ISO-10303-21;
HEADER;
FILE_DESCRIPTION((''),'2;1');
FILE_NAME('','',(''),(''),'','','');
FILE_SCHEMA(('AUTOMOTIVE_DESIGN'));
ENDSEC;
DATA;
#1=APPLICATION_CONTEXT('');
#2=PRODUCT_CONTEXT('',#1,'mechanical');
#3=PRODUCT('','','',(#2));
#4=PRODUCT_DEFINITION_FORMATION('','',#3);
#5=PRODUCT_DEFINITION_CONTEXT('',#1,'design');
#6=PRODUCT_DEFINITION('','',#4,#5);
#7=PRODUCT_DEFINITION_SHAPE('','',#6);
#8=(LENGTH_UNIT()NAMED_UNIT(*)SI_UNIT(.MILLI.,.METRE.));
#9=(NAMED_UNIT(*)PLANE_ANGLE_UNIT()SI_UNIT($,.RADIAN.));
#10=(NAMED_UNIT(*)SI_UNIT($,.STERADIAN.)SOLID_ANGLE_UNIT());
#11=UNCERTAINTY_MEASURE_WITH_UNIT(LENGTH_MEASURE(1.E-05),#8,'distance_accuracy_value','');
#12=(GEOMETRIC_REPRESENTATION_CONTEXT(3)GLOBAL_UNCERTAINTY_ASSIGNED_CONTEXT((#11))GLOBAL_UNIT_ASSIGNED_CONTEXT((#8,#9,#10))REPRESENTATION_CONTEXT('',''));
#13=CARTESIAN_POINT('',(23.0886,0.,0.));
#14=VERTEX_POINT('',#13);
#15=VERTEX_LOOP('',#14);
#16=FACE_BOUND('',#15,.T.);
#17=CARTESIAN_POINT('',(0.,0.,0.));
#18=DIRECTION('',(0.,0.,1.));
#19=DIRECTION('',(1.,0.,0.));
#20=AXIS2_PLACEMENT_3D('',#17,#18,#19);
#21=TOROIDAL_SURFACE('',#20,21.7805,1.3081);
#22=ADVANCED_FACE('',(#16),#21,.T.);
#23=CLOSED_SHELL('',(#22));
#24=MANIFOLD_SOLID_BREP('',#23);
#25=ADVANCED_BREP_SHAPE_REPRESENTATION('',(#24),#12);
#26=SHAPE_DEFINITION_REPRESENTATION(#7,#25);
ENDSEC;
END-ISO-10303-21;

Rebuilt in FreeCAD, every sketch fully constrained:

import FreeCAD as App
import Part
import Sketcher
Q = App.Units.Quantity

doc = App.newDocument("Part")
body = doc.addObject("PartDesign::Body", "Body")

sketch1 = body.newObject("Sketcher::SketchObject", "Sketch")
sketch1.AttachmentSupport = (doc.getObject("YZ_Plane"), [""])
sketch1.MapMode = "FlatFace"
sketch1.addGeometry(Part.Circle(App.Vector(-21.7805, 0, 0), App.Vector(0, 0, 1), 1.3081), False)
sketch1.addConstraint([
    Sketcher.Constraint("PointOnObject", 0, 3, -1),
    Sketcher.Constraint("Diameter", 0, Q("0.103 in")),
    Sketcher.Constraint("DistanceX", 0, 3, -1, 1, Q("0.8575 in")),
])
revolution = body.newObject("PartDesign::Revolution", "Revolution")
revolution.Profile = sketch1
revolution.ReferenceAxis = (sketch1, ["V_Axis"])
revolution.Angle = 360

doc.recompute()
